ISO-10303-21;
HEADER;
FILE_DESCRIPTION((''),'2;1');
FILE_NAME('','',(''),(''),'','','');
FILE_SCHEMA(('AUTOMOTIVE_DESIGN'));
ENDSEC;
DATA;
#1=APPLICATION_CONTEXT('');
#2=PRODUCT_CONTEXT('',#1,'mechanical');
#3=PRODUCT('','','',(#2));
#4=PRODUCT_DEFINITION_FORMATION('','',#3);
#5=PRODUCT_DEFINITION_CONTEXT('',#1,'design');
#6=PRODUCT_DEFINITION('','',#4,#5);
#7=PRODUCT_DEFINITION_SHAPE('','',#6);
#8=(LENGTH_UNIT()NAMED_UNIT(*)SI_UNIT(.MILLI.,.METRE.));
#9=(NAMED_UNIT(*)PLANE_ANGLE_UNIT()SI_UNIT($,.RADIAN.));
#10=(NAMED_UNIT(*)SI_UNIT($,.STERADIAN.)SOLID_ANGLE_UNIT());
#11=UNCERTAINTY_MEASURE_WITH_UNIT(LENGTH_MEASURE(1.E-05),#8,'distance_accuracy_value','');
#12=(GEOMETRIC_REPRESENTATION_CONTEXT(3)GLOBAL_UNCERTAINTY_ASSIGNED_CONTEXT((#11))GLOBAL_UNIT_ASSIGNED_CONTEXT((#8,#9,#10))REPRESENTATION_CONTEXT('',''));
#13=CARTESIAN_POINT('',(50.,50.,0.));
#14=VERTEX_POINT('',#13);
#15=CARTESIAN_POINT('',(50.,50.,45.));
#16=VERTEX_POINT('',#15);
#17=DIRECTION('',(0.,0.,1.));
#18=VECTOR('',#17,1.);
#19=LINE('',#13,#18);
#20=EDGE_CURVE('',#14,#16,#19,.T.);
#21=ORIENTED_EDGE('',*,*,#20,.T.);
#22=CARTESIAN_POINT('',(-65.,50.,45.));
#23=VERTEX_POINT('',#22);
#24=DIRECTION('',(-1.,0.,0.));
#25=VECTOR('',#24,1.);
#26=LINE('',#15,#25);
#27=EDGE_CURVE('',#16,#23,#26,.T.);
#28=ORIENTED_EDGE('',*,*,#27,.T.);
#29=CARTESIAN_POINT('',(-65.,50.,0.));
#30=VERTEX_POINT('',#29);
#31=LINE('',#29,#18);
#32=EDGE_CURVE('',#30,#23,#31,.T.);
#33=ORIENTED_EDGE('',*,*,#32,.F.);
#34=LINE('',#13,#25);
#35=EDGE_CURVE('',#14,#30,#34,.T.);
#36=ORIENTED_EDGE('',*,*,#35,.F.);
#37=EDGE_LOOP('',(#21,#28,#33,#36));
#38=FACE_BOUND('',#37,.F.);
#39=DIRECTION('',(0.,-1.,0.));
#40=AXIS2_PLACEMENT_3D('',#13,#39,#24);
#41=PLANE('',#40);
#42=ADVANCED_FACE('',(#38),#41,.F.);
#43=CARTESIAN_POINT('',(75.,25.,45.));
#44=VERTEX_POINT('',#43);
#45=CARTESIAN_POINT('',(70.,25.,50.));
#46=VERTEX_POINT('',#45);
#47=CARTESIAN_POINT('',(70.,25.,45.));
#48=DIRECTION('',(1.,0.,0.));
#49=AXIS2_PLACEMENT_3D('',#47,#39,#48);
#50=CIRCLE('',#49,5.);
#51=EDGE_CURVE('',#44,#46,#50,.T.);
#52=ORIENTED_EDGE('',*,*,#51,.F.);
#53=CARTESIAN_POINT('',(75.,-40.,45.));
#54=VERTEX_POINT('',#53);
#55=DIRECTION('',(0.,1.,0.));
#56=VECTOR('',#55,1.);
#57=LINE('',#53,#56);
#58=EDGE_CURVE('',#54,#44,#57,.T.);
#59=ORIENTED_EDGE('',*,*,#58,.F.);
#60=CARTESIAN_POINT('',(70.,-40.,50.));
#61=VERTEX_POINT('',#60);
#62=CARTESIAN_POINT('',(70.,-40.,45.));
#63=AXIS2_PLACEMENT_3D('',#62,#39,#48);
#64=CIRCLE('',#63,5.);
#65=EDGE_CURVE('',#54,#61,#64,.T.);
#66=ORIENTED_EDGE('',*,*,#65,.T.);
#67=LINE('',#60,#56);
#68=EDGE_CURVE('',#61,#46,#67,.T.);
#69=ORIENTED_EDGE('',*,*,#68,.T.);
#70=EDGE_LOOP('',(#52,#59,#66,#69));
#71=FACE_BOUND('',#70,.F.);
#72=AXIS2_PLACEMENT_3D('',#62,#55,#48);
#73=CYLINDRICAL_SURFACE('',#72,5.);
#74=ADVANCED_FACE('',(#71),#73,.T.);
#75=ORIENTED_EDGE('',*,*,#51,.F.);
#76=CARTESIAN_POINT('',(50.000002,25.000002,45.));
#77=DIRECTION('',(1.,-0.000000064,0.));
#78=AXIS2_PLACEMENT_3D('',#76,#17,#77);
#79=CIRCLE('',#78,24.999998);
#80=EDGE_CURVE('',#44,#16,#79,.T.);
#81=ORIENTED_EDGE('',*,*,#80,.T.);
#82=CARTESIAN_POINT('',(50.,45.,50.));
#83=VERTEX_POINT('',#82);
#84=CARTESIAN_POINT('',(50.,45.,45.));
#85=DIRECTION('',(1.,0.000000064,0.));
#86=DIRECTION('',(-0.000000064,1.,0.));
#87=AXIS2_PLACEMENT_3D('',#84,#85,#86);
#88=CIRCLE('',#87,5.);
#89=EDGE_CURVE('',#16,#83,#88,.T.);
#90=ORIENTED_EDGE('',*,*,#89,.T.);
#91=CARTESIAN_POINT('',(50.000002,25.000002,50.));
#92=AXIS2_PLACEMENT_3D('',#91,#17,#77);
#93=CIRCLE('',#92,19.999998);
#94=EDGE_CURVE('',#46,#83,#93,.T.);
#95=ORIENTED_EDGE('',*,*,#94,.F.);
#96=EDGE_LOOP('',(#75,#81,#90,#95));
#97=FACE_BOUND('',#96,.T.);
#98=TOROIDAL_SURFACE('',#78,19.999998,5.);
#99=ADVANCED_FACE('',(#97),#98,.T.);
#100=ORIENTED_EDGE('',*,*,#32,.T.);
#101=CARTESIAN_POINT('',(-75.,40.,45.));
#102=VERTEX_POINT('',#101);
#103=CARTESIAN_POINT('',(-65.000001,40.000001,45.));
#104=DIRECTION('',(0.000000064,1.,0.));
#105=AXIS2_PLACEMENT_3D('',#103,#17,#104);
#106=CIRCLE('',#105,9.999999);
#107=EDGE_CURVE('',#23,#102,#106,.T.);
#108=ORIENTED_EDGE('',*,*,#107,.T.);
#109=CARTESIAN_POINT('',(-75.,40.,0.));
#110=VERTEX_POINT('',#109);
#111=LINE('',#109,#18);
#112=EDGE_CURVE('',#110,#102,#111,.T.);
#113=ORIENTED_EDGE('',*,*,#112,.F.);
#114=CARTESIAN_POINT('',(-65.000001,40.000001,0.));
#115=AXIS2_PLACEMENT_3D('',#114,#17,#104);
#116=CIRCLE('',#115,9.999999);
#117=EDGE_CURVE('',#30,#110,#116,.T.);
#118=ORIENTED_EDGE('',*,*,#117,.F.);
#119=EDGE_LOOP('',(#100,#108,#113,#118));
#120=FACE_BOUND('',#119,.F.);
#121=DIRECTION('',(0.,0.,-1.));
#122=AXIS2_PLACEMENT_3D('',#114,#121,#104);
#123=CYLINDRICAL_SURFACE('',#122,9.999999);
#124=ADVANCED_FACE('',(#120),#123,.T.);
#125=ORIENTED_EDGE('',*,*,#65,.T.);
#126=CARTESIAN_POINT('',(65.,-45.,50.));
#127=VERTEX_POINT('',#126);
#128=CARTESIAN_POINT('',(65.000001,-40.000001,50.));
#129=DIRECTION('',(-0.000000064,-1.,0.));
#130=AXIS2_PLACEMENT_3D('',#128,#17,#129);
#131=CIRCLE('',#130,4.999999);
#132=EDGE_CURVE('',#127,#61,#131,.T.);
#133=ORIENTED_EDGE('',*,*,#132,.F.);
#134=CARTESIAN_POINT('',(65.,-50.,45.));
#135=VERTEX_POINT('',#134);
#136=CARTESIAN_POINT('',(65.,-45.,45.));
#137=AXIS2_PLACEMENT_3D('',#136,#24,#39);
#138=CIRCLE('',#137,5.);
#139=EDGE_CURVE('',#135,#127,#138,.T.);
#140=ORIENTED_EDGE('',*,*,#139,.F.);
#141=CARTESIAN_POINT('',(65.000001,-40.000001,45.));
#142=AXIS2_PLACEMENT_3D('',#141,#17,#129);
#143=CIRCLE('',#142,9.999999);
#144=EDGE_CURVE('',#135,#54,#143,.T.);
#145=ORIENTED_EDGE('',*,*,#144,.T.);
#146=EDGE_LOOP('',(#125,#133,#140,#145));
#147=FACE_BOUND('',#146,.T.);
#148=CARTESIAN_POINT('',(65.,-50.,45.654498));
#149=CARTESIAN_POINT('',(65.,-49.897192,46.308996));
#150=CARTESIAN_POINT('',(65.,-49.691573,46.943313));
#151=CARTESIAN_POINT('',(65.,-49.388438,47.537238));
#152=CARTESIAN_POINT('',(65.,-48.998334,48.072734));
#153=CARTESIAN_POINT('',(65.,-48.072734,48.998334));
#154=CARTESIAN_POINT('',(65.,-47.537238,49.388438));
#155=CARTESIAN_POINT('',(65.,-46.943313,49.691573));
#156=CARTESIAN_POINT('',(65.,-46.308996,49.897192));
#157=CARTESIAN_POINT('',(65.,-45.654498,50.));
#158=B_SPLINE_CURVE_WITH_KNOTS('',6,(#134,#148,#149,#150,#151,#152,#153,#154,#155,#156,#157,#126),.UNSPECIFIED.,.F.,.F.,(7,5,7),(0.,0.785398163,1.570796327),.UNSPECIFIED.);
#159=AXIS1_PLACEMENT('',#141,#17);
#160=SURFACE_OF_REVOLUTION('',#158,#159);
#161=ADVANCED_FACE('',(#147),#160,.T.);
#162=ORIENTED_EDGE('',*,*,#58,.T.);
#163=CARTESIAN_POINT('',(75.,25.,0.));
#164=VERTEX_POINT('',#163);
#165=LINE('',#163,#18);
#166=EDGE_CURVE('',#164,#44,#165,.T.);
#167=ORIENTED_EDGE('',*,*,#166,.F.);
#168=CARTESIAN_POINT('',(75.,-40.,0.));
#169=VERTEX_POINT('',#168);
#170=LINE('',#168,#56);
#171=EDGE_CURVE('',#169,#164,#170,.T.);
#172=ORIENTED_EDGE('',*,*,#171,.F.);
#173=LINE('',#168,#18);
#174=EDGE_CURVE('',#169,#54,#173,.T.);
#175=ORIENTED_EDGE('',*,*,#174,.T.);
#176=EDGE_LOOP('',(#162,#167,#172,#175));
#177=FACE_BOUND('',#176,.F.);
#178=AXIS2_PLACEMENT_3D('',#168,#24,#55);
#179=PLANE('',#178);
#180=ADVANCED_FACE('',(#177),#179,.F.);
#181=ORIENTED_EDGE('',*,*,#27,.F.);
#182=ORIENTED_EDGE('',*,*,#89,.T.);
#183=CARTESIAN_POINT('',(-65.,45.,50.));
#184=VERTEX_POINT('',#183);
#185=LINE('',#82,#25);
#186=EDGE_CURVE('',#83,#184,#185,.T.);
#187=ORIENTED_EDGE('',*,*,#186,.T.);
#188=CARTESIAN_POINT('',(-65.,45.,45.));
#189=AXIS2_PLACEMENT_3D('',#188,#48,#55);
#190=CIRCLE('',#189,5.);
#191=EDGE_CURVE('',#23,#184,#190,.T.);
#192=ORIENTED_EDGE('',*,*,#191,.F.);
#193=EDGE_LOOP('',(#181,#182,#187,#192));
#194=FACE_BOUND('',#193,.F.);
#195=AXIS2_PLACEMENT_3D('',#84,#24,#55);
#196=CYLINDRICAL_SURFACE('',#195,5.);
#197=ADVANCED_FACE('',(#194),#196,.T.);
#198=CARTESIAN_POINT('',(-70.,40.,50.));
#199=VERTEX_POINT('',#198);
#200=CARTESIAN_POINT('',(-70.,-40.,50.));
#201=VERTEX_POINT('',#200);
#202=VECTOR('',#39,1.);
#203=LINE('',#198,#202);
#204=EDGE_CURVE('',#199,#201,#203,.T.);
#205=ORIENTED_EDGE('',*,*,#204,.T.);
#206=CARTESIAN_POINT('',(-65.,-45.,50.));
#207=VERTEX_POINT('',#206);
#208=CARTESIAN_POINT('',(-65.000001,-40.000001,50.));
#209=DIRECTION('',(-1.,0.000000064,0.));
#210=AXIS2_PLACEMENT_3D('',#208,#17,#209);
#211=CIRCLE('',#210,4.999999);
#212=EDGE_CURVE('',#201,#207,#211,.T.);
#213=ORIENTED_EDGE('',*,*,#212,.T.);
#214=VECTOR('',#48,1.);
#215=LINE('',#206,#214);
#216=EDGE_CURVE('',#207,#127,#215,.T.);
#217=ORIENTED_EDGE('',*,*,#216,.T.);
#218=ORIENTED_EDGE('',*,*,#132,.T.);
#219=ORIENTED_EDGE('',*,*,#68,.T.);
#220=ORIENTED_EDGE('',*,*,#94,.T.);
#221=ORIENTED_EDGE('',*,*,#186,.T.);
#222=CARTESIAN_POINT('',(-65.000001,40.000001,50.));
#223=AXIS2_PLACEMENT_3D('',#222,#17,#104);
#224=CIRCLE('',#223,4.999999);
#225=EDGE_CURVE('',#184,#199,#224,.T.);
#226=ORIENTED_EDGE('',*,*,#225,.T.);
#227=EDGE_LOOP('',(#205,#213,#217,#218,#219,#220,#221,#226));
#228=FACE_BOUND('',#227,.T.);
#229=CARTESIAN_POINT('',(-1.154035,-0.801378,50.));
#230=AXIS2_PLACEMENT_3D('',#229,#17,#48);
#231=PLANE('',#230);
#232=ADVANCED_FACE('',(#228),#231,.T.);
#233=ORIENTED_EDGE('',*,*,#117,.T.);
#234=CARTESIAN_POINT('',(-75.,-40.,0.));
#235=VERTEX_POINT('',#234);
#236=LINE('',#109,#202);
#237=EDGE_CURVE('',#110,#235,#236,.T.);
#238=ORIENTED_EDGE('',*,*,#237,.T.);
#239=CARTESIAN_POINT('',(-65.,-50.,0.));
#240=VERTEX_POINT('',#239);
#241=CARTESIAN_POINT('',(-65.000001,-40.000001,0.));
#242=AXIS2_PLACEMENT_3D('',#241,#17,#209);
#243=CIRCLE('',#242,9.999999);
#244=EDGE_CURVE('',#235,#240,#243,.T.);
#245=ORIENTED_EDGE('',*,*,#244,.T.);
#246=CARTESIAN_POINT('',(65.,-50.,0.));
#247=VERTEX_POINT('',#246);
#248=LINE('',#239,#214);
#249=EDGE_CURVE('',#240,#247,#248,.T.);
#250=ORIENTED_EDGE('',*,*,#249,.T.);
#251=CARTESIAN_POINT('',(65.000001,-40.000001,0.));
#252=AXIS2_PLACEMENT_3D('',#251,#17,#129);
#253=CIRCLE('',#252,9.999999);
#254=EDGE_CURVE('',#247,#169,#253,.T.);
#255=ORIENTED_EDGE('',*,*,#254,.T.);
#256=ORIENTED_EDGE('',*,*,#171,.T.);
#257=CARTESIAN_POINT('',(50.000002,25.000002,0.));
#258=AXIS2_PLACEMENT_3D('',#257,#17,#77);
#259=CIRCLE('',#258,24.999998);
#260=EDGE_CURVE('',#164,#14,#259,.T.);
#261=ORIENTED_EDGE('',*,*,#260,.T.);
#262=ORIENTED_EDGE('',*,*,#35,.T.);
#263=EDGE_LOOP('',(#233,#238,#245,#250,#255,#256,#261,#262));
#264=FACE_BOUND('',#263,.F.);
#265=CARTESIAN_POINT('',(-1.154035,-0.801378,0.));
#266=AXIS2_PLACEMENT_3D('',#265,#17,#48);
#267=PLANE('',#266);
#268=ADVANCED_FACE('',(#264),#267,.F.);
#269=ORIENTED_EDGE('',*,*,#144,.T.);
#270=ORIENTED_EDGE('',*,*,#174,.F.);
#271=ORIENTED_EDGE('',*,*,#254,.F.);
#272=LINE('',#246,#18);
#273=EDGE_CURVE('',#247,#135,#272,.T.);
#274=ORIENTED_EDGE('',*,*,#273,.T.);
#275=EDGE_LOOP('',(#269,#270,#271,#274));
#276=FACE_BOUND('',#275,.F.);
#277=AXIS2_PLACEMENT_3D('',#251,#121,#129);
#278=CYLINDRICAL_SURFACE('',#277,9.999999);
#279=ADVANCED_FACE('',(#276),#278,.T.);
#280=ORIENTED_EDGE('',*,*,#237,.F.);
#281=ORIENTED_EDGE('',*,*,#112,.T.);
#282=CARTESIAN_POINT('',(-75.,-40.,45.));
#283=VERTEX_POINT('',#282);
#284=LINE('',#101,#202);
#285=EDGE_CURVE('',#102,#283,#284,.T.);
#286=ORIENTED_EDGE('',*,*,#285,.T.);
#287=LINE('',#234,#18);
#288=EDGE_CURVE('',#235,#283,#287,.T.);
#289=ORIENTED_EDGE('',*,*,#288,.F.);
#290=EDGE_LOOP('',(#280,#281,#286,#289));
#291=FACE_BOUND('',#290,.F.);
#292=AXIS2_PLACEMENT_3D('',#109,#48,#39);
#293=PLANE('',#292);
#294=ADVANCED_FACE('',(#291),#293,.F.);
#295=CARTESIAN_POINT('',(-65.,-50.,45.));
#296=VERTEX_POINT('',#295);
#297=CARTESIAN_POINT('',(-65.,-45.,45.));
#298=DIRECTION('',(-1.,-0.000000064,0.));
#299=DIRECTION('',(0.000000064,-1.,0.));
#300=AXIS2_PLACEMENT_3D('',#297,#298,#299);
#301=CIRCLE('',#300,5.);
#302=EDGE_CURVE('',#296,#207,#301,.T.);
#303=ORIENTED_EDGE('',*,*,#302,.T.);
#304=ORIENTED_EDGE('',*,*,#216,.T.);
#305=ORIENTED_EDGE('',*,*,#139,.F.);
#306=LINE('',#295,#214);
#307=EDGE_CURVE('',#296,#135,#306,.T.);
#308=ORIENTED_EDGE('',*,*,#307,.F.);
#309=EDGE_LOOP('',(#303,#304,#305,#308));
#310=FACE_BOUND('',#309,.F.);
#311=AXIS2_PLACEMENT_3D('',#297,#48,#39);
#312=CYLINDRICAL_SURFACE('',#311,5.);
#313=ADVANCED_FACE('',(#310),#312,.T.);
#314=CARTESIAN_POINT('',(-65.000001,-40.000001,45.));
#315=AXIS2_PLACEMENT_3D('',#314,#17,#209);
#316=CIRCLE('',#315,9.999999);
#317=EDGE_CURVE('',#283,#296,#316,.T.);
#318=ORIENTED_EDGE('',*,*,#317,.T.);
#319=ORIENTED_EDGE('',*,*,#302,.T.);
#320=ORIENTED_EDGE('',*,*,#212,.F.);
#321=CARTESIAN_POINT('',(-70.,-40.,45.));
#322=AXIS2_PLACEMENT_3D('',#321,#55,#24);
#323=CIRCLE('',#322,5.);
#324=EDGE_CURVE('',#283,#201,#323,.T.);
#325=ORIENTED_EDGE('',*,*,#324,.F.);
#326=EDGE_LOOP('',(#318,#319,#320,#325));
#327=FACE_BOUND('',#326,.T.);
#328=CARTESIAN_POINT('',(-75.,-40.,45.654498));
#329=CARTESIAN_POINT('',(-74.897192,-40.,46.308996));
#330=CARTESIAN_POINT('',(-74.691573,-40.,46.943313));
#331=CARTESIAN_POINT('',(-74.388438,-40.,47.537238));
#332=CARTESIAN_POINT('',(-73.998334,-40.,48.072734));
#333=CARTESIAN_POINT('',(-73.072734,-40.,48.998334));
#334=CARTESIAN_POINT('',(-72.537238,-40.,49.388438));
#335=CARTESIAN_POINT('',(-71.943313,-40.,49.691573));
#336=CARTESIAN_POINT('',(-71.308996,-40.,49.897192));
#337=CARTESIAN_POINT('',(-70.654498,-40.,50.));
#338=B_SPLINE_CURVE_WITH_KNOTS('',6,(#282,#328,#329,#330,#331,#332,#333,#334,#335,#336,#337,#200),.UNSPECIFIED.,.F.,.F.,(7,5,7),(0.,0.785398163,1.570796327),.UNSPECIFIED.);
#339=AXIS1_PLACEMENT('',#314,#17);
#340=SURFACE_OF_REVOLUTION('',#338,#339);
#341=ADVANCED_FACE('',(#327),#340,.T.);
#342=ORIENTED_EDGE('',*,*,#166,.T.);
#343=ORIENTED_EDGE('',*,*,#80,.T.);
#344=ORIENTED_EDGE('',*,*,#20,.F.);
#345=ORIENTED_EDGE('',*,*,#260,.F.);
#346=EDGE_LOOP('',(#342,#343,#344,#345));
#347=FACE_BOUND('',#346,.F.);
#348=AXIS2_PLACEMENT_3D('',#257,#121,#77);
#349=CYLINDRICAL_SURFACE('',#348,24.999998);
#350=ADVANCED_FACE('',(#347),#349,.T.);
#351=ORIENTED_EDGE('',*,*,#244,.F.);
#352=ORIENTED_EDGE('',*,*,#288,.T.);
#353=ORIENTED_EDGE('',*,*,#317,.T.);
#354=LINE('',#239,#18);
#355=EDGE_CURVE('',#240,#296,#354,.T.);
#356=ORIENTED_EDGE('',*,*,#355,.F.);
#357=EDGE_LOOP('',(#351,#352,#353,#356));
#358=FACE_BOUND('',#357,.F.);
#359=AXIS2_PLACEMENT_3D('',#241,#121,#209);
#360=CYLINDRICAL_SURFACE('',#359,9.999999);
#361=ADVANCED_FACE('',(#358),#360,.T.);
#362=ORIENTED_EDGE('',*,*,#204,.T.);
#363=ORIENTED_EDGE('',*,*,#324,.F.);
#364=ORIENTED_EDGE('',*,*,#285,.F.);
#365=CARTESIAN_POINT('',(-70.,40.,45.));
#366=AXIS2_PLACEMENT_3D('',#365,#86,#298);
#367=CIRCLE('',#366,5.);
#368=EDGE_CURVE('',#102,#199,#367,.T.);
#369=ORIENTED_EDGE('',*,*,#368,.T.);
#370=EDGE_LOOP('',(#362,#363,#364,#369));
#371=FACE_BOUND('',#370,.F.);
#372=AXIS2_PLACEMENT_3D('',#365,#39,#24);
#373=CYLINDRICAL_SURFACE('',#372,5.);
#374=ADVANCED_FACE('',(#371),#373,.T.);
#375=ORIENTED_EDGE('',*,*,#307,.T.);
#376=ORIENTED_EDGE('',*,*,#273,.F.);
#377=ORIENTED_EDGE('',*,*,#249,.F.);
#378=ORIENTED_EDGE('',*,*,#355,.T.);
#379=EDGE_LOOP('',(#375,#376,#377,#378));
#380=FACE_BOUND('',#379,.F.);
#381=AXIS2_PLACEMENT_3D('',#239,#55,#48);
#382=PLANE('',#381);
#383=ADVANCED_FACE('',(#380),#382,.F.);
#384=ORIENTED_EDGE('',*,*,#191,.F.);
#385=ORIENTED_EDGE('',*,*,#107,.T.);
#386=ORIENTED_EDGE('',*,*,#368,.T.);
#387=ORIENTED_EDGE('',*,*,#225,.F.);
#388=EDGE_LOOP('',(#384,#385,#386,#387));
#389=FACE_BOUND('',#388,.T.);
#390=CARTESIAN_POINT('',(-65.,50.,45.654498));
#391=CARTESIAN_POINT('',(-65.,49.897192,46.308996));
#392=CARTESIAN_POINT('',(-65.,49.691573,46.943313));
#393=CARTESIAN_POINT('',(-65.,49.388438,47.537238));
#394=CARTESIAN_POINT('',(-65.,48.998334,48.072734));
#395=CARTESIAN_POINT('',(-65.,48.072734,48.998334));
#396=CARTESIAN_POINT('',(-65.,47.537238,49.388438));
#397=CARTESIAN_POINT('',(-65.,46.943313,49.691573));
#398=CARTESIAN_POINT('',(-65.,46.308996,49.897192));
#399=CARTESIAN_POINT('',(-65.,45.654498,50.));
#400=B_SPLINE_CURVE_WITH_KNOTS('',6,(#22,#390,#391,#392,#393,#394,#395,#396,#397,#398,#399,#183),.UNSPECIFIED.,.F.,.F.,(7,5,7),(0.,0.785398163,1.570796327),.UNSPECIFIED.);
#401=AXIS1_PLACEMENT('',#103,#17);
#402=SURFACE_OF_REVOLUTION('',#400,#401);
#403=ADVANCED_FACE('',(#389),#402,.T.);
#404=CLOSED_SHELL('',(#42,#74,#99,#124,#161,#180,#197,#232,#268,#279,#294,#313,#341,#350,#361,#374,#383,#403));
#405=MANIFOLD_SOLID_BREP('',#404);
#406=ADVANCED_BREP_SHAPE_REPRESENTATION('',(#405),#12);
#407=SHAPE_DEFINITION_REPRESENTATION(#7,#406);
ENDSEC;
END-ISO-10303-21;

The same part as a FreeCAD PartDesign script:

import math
import FreeCAD as App
import Part
import Sketcher
Q = App.Units.Quantity


def edges_at(feature, points):
    """Names of the edges that pass closest to the given points."""
    edges = feature.Shape.Edges
    near = lambda p: min(range(len(edges)), key=lambda i: edges[i].distToShape(Part.Vertex(*p))[0])
    return sorted({f"Edge{near(p) + 1}" for p in points})

doc = App.newDocument("Part")
body = doc.addObject("PartDesign::Body", "Body")

sketch1 = doc.addObject("Sketcher::SketchObject", "Sketch")
body.addObject(sketch1)
sketch1.AttachmentSupport = (doc.XY_Plane, [""])
sketch1.MapMode = "FlatFace"
sketch1.addGeometry(Part.ArcOfCircle(Part.Circle(App.Vector(-65, -40, 0), App.Vector(0, 0, 1), 10), math.radians(180), math.radians(270)), False)
sketch1.addGeometry(Part.LineSegment(App.Vector(-65, -50, 0), App.Vector(65, -50, 0)), False)
sketch1.addGeometry(Part.ArcOfCircle(Part.Circle(App.Vector(65, -40, 0), App.Vector(0, 0, 1), 10), math.radians(-90), math.radians(0)), False)
sketch1.addGeometry(Part.LineSegment(App.Vector(75, -40, 0), App.Vector(75, 25, 0)), False)
sketch1.addGeometry(Part.ArcOfCircle(Part.Circle(App.Vector(50, 25, 0), App.Vector(0, 0, 1), 25), math.radians(0), math.radians(90)), False)
sketch1.addGeometry(Part.LineSegment(App.Vector(50, 50, 0), App.Vector(-65, 50, 0)), False)
sketch1.addGeometry(Part.ArcOfCircle(Part.Circle(App.Vector(-65, 40, 0), App.Vector(0, 0, 1), 10), math.radians(90), math.radians(180)), False)
sketch1.addGeometry(Part.LineSegment(App.Vector(-75, 40, 0), App.Vector(-75, -40, 0)), False)
sketch1.addConstraint(Sketcher.Constraint("Tangent", 0, 2, 1, 1))
sketch1.addConstraint(Sketcher.Constraint("Tangent", 1, 2, 2, 1))
sketch1.addConstraint(Sketcher.Constraint("Tangent", 2, 2, 3, 1))
sketch1.addConstraint(Sketcher.Constraint("Tangent", 3, 2, 4, 1))
sketch1.addConstraint(Sketcher.Constraint("Tangent", 4, 2, 5, 1))
sketch1.addConstraint(Sketcher.Constraint("Tangent", 5, 2, 6, 1))
sketch1.addConstraint(Sketcher.Constraint("Tangent", 6, 2, 7, 1))
sketch1.addConstraint(Sketcher.Constraint("Tangent", 7, 2, 0, 1))
sketch1.addConstraint(Sketcher.Constraint("Horizontal", 1))
sketch1.addConstraint(Sketcher.Constraint("Vertical", 3))
sketch1.addConstraint(Sketcher.Constraint("Horizontal", 5))
sketch1.addConstraint(Sketcher.Constraint("Vertical", 7))
sketch1.addConstraint(Sketcher.Constraint("Equal", 0, 2))
sketch1.addConstraint(Sketcher.Constraint("Equal", 2, 6))
sketch1.addConstraint(Sketcher.Constraint("Symmetric", 2, 3, 6, 3, -1, 1))
sketch1.addConstraint(Sketcher.Constraint("Radius", 0, Q("9.999999 mm")))
sketch1.addConstraint(Sketcher.Constraint("Radius", 4, Q("24.999998 mm")))
sketch1.addConstraint(Sketcher.Constraint("DistanceX", 1, 1, 1, 2, Q("130 mm")))
sketch1.addConstraint(Sketcher.Constraint("DistanceY", 3, 1, 3, 2, Q("65 mm")))
pad1 = doc.addObject("PartDesign::Pad", "Pad")
body.addObject(pad1)
pad1.Profile = sketch1
pad1.Length = 50
doc.recompute()

fillet = doc.addObject("PartDesign::Fillet", "Fillet")
body.addObject(fillet)
fillet.Base = (pad1, edges_at(pad1, [(75, -7.5, 50)]))
fillet.Radius = 5

doc.recompute()
